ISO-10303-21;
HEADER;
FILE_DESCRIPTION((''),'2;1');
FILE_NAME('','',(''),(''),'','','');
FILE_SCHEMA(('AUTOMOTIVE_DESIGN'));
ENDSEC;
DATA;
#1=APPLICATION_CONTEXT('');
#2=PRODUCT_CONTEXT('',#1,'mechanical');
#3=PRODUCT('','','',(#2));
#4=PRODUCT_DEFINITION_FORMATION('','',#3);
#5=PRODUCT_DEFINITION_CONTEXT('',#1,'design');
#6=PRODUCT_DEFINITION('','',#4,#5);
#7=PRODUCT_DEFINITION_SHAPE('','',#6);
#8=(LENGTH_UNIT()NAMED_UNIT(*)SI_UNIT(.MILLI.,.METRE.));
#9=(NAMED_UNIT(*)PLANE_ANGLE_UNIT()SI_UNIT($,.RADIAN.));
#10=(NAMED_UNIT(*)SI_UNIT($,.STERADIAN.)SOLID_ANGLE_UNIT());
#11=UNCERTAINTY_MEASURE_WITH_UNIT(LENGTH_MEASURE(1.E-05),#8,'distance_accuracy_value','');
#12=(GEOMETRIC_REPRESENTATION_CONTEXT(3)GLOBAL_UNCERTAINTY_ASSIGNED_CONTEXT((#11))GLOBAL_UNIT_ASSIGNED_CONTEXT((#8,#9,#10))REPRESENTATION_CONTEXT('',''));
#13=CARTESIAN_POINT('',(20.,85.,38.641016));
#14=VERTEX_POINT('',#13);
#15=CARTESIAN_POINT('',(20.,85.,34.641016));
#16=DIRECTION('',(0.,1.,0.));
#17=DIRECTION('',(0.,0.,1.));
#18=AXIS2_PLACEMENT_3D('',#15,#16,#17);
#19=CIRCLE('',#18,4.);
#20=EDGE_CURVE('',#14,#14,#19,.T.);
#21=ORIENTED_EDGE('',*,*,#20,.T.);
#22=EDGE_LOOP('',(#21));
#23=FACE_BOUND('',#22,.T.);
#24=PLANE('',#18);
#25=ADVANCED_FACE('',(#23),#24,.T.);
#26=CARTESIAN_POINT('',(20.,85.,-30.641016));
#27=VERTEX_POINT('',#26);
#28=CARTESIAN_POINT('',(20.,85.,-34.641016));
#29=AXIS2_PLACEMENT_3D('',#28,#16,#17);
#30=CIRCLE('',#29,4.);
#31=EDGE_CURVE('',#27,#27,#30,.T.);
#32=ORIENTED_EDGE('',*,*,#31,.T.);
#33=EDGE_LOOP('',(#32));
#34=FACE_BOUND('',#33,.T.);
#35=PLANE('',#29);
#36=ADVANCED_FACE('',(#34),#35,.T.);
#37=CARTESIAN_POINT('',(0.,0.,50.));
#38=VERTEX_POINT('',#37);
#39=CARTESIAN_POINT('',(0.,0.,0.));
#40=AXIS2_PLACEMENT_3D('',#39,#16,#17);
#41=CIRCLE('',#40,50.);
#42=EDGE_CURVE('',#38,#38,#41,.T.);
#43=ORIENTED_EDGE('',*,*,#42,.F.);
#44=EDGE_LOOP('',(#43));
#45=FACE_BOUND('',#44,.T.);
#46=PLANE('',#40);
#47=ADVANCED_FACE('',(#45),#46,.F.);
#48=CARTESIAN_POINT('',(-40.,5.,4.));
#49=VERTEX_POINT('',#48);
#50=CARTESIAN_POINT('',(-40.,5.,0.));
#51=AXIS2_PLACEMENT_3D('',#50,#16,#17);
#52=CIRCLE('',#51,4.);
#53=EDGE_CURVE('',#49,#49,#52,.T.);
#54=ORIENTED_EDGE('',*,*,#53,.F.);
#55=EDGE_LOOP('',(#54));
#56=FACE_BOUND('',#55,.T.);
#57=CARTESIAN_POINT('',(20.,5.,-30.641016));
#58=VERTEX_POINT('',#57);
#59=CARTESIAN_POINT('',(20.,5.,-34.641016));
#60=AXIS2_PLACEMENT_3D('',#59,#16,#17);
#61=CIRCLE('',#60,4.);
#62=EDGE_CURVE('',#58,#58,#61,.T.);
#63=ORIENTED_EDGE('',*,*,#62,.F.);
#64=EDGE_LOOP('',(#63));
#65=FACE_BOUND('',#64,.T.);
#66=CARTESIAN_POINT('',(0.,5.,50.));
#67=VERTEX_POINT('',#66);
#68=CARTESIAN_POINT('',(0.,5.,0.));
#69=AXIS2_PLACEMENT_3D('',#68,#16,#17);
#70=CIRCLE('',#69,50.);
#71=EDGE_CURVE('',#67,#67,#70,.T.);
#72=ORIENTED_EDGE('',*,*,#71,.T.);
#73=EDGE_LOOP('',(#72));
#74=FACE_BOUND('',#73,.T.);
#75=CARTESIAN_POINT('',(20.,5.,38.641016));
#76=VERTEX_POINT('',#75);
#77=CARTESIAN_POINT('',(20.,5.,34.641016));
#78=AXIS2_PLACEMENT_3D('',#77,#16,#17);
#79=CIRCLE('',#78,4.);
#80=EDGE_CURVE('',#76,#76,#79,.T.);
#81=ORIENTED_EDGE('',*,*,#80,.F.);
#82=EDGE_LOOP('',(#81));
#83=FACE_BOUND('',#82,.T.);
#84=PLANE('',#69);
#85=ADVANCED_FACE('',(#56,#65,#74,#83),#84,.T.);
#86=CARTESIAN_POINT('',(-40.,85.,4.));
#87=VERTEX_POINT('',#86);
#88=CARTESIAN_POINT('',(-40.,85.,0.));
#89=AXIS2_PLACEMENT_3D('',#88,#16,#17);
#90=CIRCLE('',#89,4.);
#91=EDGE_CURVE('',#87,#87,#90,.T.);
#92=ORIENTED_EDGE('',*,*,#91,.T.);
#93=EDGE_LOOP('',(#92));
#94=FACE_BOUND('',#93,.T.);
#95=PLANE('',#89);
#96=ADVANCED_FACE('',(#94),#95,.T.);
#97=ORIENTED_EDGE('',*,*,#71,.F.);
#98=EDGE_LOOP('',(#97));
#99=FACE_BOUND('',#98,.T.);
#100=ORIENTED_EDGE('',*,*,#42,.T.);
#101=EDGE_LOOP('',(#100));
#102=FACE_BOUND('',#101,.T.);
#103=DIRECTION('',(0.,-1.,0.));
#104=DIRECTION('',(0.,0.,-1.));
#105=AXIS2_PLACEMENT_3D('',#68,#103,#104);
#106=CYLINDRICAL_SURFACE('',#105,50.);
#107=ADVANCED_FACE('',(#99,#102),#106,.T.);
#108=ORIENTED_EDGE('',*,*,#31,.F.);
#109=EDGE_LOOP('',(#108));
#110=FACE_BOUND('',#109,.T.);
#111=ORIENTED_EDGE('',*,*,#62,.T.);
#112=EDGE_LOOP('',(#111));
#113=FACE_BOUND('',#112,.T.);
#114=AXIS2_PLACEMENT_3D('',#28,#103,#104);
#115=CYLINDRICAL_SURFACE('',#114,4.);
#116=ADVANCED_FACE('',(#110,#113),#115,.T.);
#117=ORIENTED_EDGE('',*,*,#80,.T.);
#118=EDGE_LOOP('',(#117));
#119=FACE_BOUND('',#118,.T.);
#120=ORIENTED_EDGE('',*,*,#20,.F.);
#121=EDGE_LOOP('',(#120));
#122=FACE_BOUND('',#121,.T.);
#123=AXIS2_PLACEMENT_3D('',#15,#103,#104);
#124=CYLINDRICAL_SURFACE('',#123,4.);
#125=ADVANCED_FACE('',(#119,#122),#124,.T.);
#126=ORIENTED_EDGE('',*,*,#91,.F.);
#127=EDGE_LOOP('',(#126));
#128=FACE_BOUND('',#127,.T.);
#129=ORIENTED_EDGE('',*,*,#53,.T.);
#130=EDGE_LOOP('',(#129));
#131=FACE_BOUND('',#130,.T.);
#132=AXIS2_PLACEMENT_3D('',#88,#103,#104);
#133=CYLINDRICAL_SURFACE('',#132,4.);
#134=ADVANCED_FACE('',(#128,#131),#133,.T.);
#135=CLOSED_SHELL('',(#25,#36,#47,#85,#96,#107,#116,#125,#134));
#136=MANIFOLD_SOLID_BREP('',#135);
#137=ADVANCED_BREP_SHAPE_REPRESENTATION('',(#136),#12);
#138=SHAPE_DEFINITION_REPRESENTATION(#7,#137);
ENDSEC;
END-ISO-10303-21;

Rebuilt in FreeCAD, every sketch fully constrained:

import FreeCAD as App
import Part
import Sketcher
from FreeCAD import Vector

doc = App.newDocument("Part")
params = doc.addObject("Spreadsheet::Sheet", "Params")
for row, (alias, value) in enumerate([
    ("sketch1_diameter", "100 mm"),
    ("pad1_length", "5 mm"),
    ("sketch2_diameter", "8 mm"),
    ("pad2_length", "80 mm"),
], start=1):
    params.set(f"A{row}", alias)
    params.set(f"B{row}", "=" + value)
    params.setAlias(f"B{row}", alias)

body = doc.addObject("PartDesign::Body", "Body")

# Sketch on XZ plane
sketch1 = body.newObject("Sketcher::SketchObject", "Sketch")
sketch1.AttachmentSupport = (doc.getObject("XZ_Plane"), [""])
sketch1.MapMode = "FlatFace"
sketch1.addGeometry(Part.Circle(Vector(0, 0, 0), Vector(0, 0, 1), 50), False)
sketch1.addConstraint([
    Sketcher.Constraint("Coincident", 0, 3, -1, 1),
    Sketcher.Constraint("Diameter", 0, 100.0),
])
sketch1.setExpression("Constraints[1]", "Params.sketch1_diameter")
pad1 = body.newObject("PartDesign::Pad", "Pad")
pad1.Profile = sketch1
pad1.setExpression("Length", "Params.pad1_length")
pad1.Reversed = True

# Sketch on XZ plane
sketch2 = body.newObject("Sketcher::SketchObject", "Sketch001")
sketch2.AttachmentSupport = (doc.getObject("XZ_Plane"), [""])
sketch2.MapMode = "FlatFace"
sketch2.AttachmentOffset = App.Placement(Vector(0, 0, -5), App.Rotation())
sketch2.addGeometry([
    Part.Circle(Vector(-40, 0, 0), Vector(0, 0, 1), 4),
    Part.Circle(Vector(20, -34.6, 0), Vector(0, 0, 1), 4),
    Part.Circle(Vector(20, 34.6, 0), Vector(0, 0, 1), 4),
], False)
sketch2.addConstraint([
    Sketcher.Constraint("Equal", 0, 1),
    Sketcher.Constraint("Equal", 1, 2),
    Sketcher.Constraint("Symmetric", 1, 3, 2, 3, -1),
    Sketcher.Constraint("PointOnObject", 0, 3, -1),
    Sketcher.Constraint("Diameter", 0, 8.0),
    Sketcher.Constraint("DistanceX", 0, 3, -1, 1, 40.0),
    Sketcher.Constraint("DistanceX", -1, 1, 1, 3, 20.0),
    Sketcher.Constraint("DistanceY", 1, 3, -1, 1, 34.641016),
])
sketch2.setExpression("Constraints[4]", "Params.sketch2_diameter")
pad2 = body.newObject("PartDesign::Pad", "Pad001")
pad2.Profile = sketch2
pad2.setExpression("Length", "Params.pad2_length")
pad2.Reversed = True

doc.recompute()
